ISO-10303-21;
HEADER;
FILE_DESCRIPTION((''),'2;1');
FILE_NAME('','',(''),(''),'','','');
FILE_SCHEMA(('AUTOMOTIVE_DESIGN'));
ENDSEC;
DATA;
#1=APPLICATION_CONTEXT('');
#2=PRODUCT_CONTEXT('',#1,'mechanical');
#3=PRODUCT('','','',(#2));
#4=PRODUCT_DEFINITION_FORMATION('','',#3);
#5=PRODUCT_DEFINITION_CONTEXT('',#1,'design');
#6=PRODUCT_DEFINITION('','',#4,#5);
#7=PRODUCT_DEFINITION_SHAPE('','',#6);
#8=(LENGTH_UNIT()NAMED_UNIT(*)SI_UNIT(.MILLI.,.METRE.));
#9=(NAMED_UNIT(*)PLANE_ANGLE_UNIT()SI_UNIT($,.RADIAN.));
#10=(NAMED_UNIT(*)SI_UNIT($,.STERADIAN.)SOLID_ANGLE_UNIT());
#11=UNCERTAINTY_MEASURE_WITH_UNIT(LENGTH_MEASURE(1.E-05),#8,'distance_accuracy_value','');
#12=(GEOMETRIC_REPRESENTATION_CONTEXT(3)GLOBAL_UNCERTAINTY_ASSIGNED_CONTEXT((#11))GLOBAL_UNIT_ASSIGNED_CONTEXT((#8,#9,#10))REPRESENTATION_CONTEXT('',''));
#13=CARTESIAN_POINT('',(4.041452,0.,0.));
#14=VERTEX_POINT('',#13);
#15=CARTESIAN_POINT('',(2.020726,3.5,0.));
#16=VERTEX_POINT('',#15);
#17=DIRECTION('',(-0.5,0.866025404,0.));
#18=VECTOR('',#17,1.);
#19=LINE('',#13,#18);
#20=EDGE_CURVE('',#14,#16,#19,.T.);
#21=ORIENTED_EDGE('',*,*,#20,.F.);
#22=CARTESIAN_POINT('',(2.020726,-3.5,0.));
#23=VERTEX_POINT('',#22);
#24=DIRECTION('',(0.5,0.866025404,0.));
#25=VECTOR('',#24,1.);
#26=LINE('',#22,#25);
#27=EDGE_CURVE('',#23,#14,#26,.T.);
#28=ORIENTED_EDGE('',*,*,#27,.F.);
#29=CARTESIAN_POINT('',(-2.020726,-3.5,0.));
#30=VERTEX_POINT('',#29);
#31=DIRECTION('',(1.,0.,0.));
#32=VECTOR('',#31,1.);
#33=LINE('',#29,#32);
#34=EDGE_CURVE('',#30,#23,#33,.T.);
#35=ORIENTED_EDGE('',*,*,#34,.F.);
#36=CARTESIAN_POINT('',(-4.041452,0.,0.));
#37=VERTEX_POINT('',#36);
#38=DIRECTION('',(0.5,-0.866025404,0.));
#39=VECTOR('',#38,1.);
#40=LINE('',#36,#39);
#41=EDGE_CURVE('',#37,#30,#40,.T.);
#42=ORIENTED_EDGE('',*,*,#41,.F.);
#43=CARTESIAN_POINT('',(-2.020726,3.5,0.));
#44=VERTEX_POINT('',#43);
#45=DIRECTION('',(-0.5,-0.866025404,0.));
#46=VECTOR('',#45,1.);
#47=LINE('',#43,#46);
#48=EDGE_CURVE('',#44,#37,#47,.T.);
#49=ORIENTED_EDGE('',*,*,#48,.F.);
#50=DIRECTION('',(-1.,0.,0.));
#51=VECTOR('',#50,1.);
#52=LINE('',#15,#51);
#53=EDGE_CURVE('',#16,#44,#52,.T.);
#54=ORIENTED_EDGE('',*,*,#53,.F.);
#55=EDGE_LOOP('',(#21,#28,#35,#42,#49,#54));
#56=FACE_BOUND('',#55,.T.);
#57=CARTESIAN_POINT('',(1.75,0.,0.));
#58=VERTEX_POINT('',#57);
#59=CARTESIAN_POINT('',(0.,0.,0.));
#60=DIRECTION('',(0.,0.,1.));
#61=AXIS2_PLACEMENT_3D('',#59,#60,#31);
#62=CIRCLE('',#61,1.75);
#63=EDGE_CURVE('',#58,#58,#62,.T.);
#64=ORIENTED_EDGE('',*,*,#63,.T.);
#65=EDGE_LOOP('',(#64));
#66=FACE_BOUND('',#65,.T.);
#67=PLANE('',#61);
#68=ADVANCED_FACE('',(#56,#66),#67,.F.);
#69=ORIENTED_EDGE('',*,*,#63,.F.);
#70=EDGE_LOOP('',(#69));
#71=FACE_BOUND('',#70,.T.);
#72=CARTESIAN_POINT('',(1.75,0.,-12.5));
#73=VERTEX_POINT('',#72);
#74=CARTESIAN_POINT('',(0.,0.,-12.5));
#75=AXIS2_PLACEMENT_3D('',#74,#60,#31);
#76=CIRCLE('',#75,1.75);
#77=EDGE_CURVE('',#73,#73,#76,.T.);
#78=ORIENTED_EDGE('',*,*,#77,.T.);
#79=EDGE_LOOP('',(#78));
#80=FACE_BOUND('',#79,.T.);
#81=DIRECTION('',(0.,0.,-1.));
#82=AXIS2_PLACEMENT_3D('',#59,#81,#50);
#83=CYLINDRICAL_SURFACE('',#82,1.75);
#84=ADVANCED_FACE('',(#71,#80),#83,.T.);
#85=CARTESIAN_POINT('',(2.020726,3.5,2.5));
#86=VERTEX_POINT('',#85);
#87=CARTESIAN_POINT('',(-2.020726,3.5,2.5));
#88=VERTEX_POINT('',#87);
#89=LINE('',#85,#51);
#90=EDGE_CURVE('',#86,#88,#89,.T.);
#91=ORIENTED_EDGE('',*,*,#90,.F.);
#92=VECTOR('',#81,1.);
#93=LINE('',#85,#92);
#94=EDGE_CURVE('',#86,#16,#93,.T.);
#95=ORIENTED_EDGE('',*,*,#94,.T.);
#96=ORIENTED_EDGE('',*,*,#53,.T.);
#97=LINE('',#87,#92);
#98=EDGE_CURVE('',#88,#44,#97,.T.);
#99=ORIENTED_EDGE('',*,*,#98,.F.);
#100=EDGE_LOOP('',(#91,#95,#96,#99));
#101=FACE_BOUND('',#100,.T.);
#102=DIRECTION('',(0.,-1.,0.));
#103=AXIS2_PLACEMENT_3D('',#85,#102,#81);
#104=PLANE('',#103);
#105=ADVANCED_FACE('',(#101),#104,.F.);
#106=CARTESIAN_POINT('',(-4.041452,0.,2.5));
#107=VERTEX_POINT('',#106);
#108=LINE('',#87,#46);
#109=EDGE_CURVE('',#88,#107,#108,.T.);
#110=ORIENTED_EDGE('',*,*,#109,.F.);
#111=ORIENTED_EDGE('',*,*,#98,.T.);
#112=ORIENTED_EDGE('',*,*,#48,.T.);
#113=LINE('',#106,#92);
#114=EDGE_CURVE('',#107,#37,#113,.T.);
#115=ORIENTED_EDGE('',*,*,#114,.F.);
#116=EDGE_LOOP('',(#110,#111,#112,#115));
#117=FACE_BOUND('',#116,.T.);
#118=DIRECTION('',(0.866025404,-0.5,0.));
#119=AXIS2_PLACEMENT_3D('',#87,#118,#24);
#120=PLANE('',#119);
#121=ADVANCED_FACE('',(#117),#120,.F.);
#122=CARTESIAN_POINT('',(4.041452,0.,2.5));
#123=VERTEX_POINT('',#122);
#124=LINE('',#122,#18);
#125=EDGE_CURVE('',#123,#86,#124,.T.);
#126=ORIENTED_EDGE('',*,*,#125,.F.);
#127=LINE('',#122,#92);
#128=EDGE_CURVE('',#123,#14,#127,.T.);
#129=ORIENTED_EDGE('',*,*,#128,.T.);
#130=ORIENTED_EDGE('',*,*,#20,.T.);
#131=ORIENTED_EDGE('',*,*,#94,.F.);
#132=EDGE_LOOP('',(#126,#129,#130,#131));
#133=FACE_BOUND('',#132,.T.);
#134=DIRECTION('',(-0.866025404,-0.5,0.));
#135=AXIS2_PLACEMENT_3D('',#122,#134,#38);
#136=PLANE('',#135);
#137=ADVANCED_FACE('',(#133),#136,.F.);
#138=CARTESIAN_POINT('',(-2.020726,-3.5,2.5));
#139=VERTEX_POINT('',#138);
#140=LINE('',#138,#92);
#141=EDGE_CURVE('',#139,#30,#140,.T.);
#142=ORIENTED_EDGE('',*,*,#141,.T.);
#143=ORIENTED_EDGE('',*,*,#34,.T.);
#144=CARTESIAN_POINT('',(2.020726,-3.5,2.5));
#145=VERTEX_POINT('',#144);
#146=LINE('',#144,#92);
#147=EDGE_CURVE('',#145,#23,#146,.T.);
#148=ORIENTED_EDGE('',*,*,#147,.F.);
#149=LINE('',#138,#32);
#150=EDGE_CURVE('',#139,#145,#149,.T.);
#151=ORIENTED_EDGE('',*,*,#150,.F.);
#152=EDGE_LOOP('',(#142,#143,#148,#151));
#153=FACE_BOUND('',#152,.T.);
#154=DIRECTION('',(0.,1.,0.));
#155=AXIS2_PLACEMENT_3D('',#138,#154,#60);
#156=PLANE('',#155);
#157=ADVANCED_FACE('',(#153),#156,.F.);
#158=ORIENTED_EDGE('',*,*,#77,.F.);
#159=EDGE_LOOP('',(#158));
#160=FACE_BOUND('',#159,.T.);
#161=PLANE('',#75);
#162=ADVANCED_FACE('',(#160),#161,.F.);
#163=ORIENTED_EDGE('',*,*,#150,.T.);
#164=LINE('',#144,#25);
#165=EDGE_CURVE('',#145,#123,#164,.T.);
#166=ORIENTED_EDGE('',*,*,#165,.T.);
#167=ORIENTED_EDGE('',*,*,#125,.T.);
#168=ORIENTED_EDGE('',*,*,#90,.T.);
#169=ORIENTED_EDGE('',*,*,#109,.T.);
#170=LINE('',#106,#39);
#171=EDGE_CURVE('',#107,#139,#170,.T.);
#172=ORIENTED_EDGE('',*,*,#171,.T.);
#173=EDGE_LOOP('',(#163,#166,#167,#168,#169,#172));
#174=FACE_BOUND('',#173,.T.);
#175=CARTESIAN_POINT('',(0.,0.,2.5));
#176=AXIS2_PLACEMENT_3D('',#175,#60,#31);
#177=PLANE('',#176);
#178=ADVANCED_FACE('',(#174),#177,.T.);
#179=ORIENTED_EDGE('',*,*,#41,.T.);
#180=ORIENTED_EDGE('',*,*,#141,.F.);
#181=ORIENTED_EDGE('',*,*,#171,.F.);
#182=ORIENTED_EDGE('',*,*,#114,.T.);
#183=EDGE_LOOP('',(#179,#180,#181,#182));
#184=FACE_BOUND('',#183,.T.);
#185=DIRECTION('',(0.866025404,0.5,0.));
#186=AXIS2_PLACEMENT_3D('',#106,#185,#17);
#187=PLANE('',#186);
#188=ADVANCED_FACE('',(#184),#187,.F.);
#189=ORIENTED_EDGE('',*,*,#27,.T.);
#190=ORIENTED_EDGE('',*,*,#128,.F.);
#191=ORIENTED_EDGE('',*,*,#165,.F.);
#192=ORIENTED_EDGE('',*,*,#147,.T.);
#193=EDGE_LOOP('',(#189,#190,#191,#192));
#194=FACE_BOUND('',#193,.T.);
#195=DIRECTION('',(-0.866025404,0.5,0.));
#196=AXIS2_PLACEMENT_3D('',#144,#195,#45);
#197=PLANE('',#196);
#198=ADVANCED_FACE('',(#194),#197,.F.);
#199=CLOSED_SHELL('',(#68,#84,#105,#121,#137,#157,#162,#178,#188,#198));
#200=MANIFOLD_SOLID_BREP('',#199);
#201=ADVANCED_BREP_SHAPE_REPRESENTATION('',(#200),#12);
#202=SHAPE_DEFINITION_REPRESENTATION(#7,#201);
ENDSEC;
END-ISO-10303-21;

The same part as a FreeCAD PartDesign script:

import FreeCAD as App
import Part
import Sketcher
from FreeCAD import Vector
Q = App.Units.Quantity

doc = App.newDocument("Part")
body = doc.addObject("PartDesign::Body", "Body")

sketch1 = body.newObject("Sketcher::SketchObject", "Sketch")
sketch1.AttachmentSupport = (doc.getObject("XY_Plane"), [""])
sketch1.MapMode = "FlatFace"
sketch1.addGeometry(Part.LineSegment(Vector(4, 0, 0), Vector(2, 3.5, 0)), False)
sketch1.addGeometry(Part.LineSegment(Vector(2, 3.5, 0), Vector(-2, 3.5, 0)), False)
sketch1.addGeometry(Part.LineSegment(Vector(-2, 3.5, 0), Vector(-4, 0, 0)), False)
sketch1.addGeometry(Part.LineSegment(Vector(-4, 0, 0), Vector(-2, -3.5, 0)), False)
sketch1.addGeometry(Part.LineSegment(Vector(-2, -3.5, 0), Vector(2, -3.5, 0)), False)
sketch1.addGeometry(Part.LineSegment(Vector(2, -3.5, 0), Vector(4, 0, 0)), False)
sketch1.addConstraint(Sketcher.Constraint("Coincident", 0, 2, 1, 1))
sketch1.addConstraint(Sketcher.Constraint("Coincident", 1, 2, 2, 1))
sketch1.addConstraint(Sketcher.Constraint("Coincident", 2, 2, 3, 1))
sketch1.addConstraint(Sketcher.Constraint("Coincident", 3, 2, 4, 1))
sketch1.addConstraint(Sketcher.Constraint("Coincident", 4, 2, 5, 1))
sketch1.addConstraint(Sketcher.Constraint("Coincident", 5, 2, 0, 1))
sketch1.addConstraint(Sketcher.Constraint("Horizontal", 1))
sketch1.addConstraint(Sketcher.Constraint("Horizontal", 4))
sketch1.addConstraint(Sketcher.Constraint("Symmetric", 0, 2, 3, 2, -1, 1))
sketch1.addConstraint(Sketcher.Constraint("Symmetric", 2, 2, 5, 2, -1, 1))
sketch1.addConstraint(Sketcher.Constraint("PointOnObject", 2, 2, -1))
sketch1.addConstraint(Sketcher.Constraint("Parallel", 2, 5))
sketch1.addConstraint(Sketcher.Constraint("Vertical", 1, 2, 3, 2))
sketch1.addConstraint(Sketcher.Constraint("Angle", 0, Q("120 deg")))
sketch1.addConstraint(Sketcher.Constraint("DistanceY", 3, 2, 1, 2, Q("7 mm")))
sketch1.addConstraint(Sketcher.Constraint("DistanceX", 1, 2, 1, 1, Q("4.041452 mm")))
pad1 = body.newObject("PartDesign::Pad", "Pad")
pad1.Profile = sketch1
pad1.Length = 2.5

sketch2 = body.newObject("Sketcher::SketchObject", "Sketch001")
sketch2.AttachmentSupport = (doc.getObject("XY_Plane"), [""])
sketch2.MapMode = "FlatFace"
sketch2.AttachmentOffset = App.Placement(Vector(0, 0, -12.5), App.Rotation())
sketch2.addGeometry(Part.Circle(Vector(0, 0, 0), Vector(0, 0, 1), 1.8), False)
sketch2.addConstraint(Sketcher.Constraint("Coincident", 0, 3, -1, 1))
sketch2.addConstraint(Sketcher.Constraint("Diameter", 0, Q("3.5 mm")))
pad2 = body.newObject("PartDesign::Pad", "Pad001")
pad2.Profile = sketch2
pad2.Length = 12.5

doc.recompute()
